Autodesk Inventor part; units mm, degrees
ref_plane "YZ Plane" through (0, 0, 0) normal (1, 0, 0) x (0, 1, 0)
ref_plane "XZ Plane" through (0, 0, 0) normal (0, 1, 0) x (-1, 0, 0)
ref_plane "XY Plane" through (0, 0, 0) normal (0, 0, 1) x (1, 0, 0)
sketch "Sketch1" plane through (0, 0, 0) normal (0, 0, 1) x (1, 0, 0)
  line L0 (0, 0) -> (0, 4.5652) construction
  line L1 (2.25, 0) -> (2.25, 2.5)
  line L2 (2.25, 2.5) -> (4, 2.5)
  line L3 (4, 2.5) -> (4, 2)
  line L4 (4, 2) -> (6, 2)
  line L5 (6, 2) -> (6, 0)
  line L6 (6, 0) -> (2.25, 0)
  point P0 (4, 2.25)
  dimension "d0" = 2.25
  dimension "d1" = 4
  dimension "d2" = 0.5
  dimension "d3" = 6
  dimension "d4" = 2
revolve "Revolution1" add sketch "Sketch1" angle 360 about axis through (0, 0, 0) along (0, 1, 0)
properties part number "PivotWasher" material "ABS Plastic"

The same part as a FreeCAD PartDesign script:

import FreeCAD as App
import Part
import Sketcher
from FreeCAD import Vector


def add_polygon(sketch, points):
    """Adds a closed chain of lines whose ends are joined by coincident constraints."""
    first, n = sketch.GeometryCount, len(points)
    for a, b in zip(points, points[1:] + points[:1]):
        sketch.addGeometry(Part.LineSegment(App.Vector(*a, 0), App.Vector(*b, 0)), False)
    for i in range(n):
        sketch.addConstraint(Sketcher.Constraint("Coincident", first + i, 2, first + (i + 1) % n, 1))

doc = App.newDocument("Part")
body = doc.addObject("PartDesign::Body", "Body")

# Sketch on XY plane
sketch1 = body.newObject("Sketcher::SketchObject", "Sketch")
sketch1.AttachmentSupport = (doc.getObject("XY_Plane"), [""])
sketch1.MapMode = "FlatFace"
add_polygon(sketch1, [(2.2, 2.5), (2.2, 0), (6, 0), (6, 2), (4, 2), (4, 2.5)])  # lines 0-5
sketch1.addConstraint([
    Sketcher.Constraint("Vertical", 0),
    Sketcher.Constraint("Horizontal", 1),
    Sketcher.Constraint("Vertical", 2),
    Sketcher.Constraint("Horizontal", 3),
    Sketcher.Constraint("Vertical", 4),
    Sketcher.Constraint("Horizontal", 5),
    Sketcher.Constraint("PointOnObject", 0, 2, -1),
    Sketcher.Constraint("Equal", 3, 2),
    Sketcher.Constraint("DistanceX", 3, 2, 3, 1, 2.0),
    Sketcher.Constraint("DistanceY", 4, 1, 4, 2, 0.5),
    Sketcher.Constraint("DistanceX", -1, 1, 1, 2, 6.0),
    Sketcher.Constraint("DistanceX", -1, 1, 0, 2, 2.25),
])
revolution = body.newObject("PartDesign::Revolution", "Revolution")
revolution.Profile = sketch1
revolution.ReferenceAxis = (sketch1, ["V_Axis"])
revolution.Angle = 360

doc.recompute()
